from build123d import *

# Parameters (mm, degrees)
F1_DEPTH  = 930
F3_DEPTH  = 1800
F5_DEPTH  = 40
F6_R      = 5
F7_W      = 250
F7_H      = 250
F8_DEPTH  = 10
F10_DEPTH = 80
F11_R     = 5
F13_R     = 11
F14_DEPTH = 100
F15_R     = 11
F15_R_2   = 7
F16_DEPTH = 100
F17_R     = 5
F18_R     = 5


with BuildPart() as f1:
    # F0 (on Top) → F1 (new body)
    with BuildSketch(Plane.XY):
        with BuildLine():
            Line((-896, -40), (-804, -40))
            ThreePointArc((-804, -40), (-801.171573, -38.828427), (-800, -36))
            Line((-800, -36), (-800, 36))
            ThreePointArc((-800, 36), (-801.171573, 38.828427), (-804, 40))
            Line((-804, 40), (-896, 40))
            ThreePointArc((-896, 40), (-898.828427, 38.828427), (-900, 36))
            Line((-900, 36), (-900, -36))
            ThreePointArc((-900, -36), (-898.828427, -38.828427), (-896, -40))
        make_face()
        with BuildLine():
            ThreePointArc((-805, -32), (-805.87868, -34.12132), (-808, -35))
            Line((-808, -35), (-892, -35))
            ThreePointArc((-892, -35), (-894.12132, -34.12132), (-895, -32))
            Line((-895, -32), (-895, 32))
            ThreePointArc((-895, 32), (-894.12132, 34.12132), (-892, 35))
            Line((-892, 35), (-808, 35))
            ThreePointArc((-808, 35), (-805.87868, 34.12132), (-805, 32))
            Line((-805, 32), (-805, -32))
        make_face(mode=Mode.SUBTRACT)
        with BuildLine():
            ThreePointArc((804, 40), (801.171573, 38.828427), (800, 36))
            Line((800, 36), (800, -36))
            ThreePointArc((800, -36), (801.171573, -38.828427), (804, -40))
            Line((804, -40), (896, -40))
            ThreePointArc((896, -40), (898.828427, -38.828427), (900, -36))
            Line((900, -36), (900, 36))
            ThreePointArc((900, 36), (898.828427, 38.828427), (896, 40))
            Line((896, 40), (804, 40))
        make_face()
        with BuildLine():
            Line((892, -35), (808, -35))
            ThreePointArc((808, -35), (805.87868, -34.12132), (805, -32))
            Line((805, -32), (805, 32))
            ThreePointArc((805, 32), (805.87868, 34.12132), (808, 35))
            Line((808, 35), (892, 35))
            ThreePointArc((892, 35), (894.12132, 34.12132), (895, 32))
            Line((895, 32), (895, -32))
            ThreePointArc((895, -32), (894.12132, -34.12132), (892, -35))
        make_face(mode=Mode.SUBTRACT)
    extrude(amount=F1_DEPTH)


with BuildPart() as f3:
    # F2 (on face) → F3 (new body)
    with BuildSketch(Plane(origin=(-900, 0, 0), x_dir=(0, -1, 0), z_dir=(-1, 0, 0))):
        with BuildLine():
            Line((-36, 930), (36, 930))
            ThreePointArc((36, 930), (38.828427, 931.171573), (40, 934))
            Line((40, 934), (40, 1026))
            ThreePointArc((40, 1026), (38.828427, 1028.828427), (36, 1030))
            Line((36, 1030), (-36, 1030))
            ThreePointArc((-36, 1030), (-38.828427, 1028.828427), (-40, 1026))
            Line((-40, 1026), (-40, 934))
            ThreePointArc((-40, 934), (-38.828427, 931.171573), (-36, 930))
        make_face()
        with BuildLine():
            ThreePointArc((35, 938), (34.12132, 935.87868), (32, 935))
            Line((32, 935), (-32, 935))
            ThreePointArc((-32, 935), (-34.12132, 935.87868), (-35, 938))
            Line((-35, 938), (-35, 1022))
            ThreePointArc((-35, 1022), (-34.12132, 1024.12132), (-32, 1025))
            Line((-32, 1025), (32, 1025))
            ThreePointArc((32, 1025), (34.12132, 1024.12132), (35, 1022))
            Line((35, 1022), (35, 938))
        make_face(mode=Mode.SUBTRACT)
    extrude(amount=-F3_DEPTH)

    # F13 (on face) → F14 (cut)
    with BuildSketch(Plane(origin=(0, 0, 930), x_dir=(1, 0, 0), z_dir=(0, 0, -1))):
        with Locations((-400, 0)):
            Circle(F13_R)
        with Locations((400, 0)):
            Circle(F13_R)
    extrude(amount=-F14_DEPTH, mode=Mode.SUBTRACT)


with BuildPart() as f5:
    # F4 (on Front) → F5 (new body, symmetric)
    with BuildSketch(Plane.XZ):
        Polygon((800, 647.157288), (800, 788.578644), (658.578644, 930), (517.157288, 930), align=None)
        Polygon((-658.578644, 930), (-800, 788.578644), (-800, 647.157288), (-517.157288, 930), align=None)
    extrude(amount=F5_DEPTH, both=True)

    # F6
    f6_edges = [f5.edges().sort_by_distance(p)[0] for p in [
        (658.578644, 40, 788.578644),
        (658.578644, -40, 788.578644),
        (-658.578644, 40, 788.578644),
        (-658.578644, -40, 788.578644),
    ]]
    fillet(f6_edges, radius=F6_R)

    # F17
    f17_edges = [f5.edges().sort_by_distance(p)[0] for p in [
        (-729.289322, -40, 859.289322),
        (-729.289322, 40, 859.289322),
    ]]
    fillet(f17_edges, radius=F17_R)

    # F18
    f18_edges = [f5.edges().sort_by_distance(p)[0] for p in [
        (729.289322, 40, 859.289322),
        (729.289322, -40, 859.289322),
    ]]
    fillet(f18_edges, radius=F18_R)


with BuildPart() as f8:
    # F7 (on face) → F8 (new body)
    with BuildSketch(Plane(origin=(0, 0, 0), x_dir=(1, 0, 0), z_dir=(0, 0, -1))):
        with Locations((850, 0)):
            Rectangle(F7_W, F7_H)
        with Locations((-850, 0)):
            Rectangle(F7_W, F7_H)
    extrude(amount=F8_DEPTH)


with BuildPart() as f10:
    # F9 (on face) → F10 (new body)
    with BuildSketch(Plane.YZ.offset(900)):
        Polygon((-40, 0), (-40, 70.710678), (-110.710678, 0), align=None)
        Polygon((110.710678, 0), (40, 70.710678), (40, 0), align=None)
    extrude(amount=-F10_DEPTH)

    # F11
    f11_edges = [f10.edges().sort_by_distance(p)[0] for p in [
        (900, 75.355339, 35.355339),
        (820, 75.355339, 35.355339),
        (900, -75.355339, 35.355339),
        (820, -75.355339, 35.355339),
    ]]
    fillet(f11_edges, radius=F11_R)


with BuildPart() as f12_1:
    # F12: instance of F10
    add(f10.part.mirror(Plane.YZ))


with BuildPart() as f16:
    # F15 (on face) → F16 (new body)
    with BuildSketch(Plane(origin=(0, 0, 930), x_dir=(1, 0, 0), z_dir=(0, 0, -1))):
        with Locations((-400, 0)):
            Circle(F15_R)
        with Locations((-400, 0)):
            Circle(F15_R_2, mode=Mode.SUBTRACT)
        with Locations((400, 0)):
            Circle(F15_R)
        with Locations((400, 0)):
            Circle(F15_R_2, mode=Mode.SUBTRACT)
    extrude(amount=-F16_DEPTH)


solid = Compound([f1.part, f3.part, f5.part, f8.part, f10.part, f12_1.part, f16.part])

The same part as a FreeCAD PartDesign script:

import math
import FreeCAD as App
import Part
import Sketcher
from FreeCAD import Vector
Q = App.Units.Quantity


def edges_at(feature, points):
    """Names of the edges that pass closest to the given points."""
    edges = feature.Shape.Edges
    near = lambda p: min(range(len(edges)), key=lambda i: edges[i].distToShape(Part.Vertex(*p))[0])
    return sorted({f"Edge{near(p) + 1}" for p in points})

doc = App.newDocument("Part")
body = doc.addObject("PartDesign::Body", "Body")
body.AllowCompound = True

# Sketch on XY plane
sketch1 = body.newObject("Sketcher::SketchObject", "Sketch")
sketch1.AttachmentSupport = (doc.getObject("XY_Plane"), [""])
sketch1.MapMode = "FlatFace"
sketch1.addGeometry([
    Part.LineSegment(Vector(-896, -40, 0), Vector(-804, -40, 0)),  # 0
    Part.ArcOfCircle(Part.Circle(Vector(-804, -36, 0), Vector(0, 0, 1), 4), math.radians(-90), math.radians(0)),  # 1
    Part.LineSegment(Vector(-800, -36, 0), Vector(-800, 36, 0)),  # 2
    Part.ArcOfCircle(Part.Circle(Vector(-804, 36, 0), Vector(0, 0, 1), 4), math.radians(0), math.radians(90)),  # 3
    Part.LineSegment(Vector(-804, 40, 0), Vector(-896, 40, 0)),  # 4
    Part.ArcOfCircle(Part.Circle(Vector(-896, 36, 0), Vector(0, 0, 1), 4), math.radians(90), math.radians(180)),  # 5
    Part.LineSegment(Vector(-900, 36, 0), Vector(-900, -36, 0)),  # 6
    Part.ArcOfCircle(Part.Circle(Vector(-896, -36, 0), Vector(0, 0, 1), 4), math.radians(-180), math.radians(-90)),  # 7
    Part.LineSegment(Vector(-805, 32, 0), Vector(-805, -32, 0)),  # 8
    Part.ArcOfCircle(Part.Circle(Vector(-808, -32, 0), Vector(0, 0, 1), 3), math.radians(-90), math.radians(0)),  # 9
    Part.LineSegment(Vector(-808, -35, 0), Vector(-892, -35, 0)),  # 10
    Part.ArcOfCircle(Part.Circle(Vector(-892, -32, 0), Vector(0, 0, 1), 3), math.radians(-180), math.radians(-90)),  # 11
    Part.LineSegment(Vector(-895, -32, 0), Vector(-895, 32, 0)),  # 12
    Part.ArcOfCircle(Part.Circle(Vector(-892, 32, 0), Vector(0, 0, 1), 3), math.radians(90), math.radians(180)),  # 13
    Part.LineSegment(Vector(-892, 35, 0), Vector(-808, 35, 0)),  # 14
    Part.ArcOfCircle(Part.Circle(Vector(-808, 32, 0), Vector(0, 0, 1), 3), math.radians(0), math.radians(90)),  # 15
    Part.ArcOfCircle(Part.Circle(Vector(804, 36, 0), Vector(0, 0, 1), 4), math.radians(90), math.radians(180)),  # 16
    Part.LineSegment(Vector(800, 36, 0), Vector(800, -36, 0)),  # 17
    Part.ArcOfCircle(Part.Circle(Vector(804, -36, 0), Vector(0, 0, 1), 4), math.radians(-180), math.radians(-90)),  # 18
    Part.LineSegment(Vector(804, -40, 0), Vector(896, -40, 0)),  # 19
    Part.ArcOfCircle(Part.Circle(Vector(896, -36, 0), Vector(0, 0, 1), 4), math.radians(-90), math.radians(0)),  # 20
    Part.LineSegment(Vector(900, -36, 0), Vector(900, 36, 0)),  # 21
    Part.ArcOfCircle(Part.Circle(Vector(896, 36, 0), Vector(0, 0, 1), 4), math.radians(0), math.radians(90)),  # 22
    Part.LineSegment(Vector(896, 40, 0), Vector(804, 40, 0)),  # 23
    Part.ArcOfCircle(Part.Circle(Vector(892, -32, 0), Vector(0, 0, 1), 3), math.radians(-90), math.radians(0)),  # 24
    Part.LineSegment(Vector(892, -35, 0), Vector(808, -35, 0)),  # 25
    Part.ArcOfCircle(Part.Circle(Vector(808, -32, 0), Vector(0, 0, 1), 3), math.radians(-180), math.radians(-90)),  # 26
    Part.LineSegment(Vector(805, -32, 0), Vector(805, 32, 0)),  # 27
    Part.ArcOfCircle(Part.Circle(Vector(808, 32, 0), Vector(0, 0, 1), 3), math.radians(90), math.radians(180)),  # 28
    Part.LineSegment(Vector(808, 35, 0), Vector(892, 35, 0)),  # 29
    Part.ArcOfCircle(Part.Circle(Vector(892, 32, 0), Vector(0, 0, 1), 3), math.radians(0), math.radians(90)),  # 30
    Part.LineSegment(Vector(895, 32, 0), Vector(895, -32, 0)),  # 31
], False)
sketch1.addConstraint([
    Sketcher.Constraint("Tangent", 0, 2, 1, 1),
    Sketcher.Constraint("Tangent", 1, 2, 2, 1),
    Sketcher.Constraint("Tangent", 2, 2, 3, 1),
    Sketcher.Constraint("Tangent", 3, 2, 4, 1),
    Sketcher.Constraint("Tangent", 4, 2, 5, 1),
    Sketcher.Constraint("Tangent", 5, 2, 6, 1),
    Sketcher.Constraint("Tangent", 6, 2, 7, 1),
    Sketcher.Constraint("Tangent", 7, 2, 0, 1),
    Sketcher.Constraint("Tangent", 8, 2, 9, 2),
    Sketcher.Constraint("Tangent", 9, 1, 10, 1),
    Sketcher.Constraint("Tangent", 10, 2, 11, 2),
    Sketcher.Constraint("Tangent", 11, 1, 12, 1),
    Sketcher.Constraint("Tangent", 12, 2, 13, 2),
    Sketcher.Constraint("Tangent", 13, 1, 14, 1),
    Sketcher.Constraint("Tangent", 14, 2, 15, 2),
    Sketcher.Constraint("Tangent", 15, 1, 8, 1),
    Sketcher.Constraint("Tangent", 16, 2, 17, 1),
    Sketcher.Constraint("Tangent", 17, 2, 18, 1),
    Sketcher.Constraint("Tangent", 18, 2, 19, 1),
    Sketcher.Constraint("Tangent", 19, 2, 20, 1),
    Sketcher.Constraint("Tangent", 20, 2, 21, 1),
    Sketcher.Constraint("Tangent", 21, 2, 22, 1),
    Sketcher.Constraint("Tangent", 22, 2, 23, 1),
    Sketcher.Constraint("Tangent", 23, 2, 16, 1),
    Sketcher.Constraint("Tangent", 24, 1, 25, 1),
    Sketcher.Constraint("Tangent", 25, 2, 26, 2),
    Sketcher.Constraint("Tangent", 26, 1, 27, 1),
    Sketcher.Constraint("Tangent", 27, 2, 28, 2),
    Sketcher.Constraint("Tangent", 28, 1, 29, 1),
    Sketcher.Constraint("Tangent", 29, 2, 30, 2),
    Sketcher.Constraint("Tangent", 30, 1, 31, 1),
    Sketcher.Constraint("Tangent", 31, 2, 24, 2),
    Sketcher.Constraint("Horizontal", 0),
    Sketcher.Constraint("Vertical", 2),
    Sketcher.Constraint("Horizontal", 4),
    Sketcher.Constraint("Vertical", 6),
    Sketcher.Constraint("Vertical", 8),
    Sketcher.Constraint("Horizontal", 10),
    Sketcher.Constraint("Vertical", 12),
    Sketcher.Constraint("Horizontal", 14),
    Sketcher.Constraint("Vertical", 17),
    Sketcher.Constraint("Horizontal", 19),
    Sketcher.Constraint("Vertical", 21),
    Sketcher.Constraint("Horizontal", 23),
    Sketcher.Constraint("Horizontal", 25),
    Sketcher.Constraint("Vertical", 27),
    Sketcher.Constraint("Horizontal", 29),
    Sketcher.Constraint("Vertical", 31),
    Sketcher.Constraint("Equal", 1, 3),
    Sketcher.Constraint("Equal", 3, 5),
    Sketcher.Constraint("Equal", 5, 7),
    Sketcher.Constraint("Equal", 9, 11),
    Sketcher.Constraint("Equal", 11, 13),
    Sketcher.Constraint("Equal", 13, 15),
    Sketcher.Constraint("Equal", 7, 16),
    Sketcher.Constraint("Equal", 16, 18),
    Sketcher.Constraint("Equal", 18, 20),
    Sketcher.Constraint("Equal", 20, 22),
    Sketcher.Constraint("Equal", 15, 24),
    Sketcher.Constraint("Equal", 24, 26),
    Sketcher.Constraint("Equal", 26, 28),
    Sketcher.Constraint("Equal", 28, 30),
    Sketcher.Constraint("Symmetric", 1, 3, 16, 3, -1, 1),
    Sketcher.Constraint("Symmetric", 5, 3, 20, 3, -1, 1),
    Sketcher.Constraint("Symmetric", 13, 3, 24, 3, -1, 1),
    Sketcher.Constraint("Symmetric", 9, 3, 28, 3, -1, 1),
    Sketcher.Constraint("Horizontal", 5, 3, 16, 3),
    Sketcher.Constraint("Horizontal", 11, 3, 24, 3),
    Sketcher.Constraint("Radius", 1, Q("4 mm")),
    Sketcher.Constraint("Radius", 9, Q("3.000001 mm")),
    Sketcher.Constraint("DistanceX", 0, 1, 0, 2, Q("92 mm")),
    Sketcher.Constraint("DistanceX", 10, 2, 10, 1, Q("84 mm")),
    Sketcher.Constraint("DistanceY", 2, 1, 2, 2, Q("72 mm")),
    Sketcher.Constraint("DistanceY", 8, 2, 8, 1, Q("64 mm")),
    Sketcher.Constraint("DistanceX", 1, 3, -1, 1, Q("804 mm")),
    Sketcher.Constraint("DistanceX", 9, 3, -1, 1, Q("808.000001 mm")),
])
pad1 = body.newObject("PartDesign::Pad", "Pad")
pad1.Profile = sketch1
pad1.Length = 930
body2 = doc.addObject("PartDesign::Body", "Body001")

# Sketch on YZ plane
sketch2 = body2.newObject("Sketcher::SketchObject", "Sketch001")
sketch2.AttachmentSupport = (doc.getObject("YZ_Plane001"), [""])
sketch2.MapMode = "FlatFace"
sketch2.AttachmentOffset = App.Placement(Vector(0, 0, -900), App.Rotation())
sketch2.addGeometry([
    Part.LineSegment(Vector(36, 930, 0), Vector(-36, 930, 0)),  # 0
    Part.ArcOfCircle(Part.Circle(Vector(-36, 934, 0), Vector(0, 0, 1), 4), math.radians(-180), math.radians(-90)),  # 1
    Part.LineSegment(Vector(-40, 934, 0), Vector(-40, 1026, 0)),  # 2
    Part.ArcOfCircle(Part.Circle(Vector(-36, 1026, 0), Vector(0, 0, 1), 4), math.radians(90), math.radians(180)),  # 3
    Part.LineSegment(Vector(-36, 1030, 0), Vector(36, 1030, 0)),  # 4
    Part.ArcOfCircle(Part.Circle(Vector(36, 1026, 0), Vector(0, 0, 1), 4), math.radians(0), math.radians(90)),  # 5
    Part.LineSegment(Vector(40, 1026, 0), Vector(40, 934, 0)),  # 6
    Part.ArcOfCircle(Part.Circle(Vector(36, 934, 0), Vector(0, 0, 1), 4), math.radians(-90), math.radians(0)),  # 7
    Part.LineSegment(Vector(-35, 1022, 0), Vector(-35, 938, 0)),  # 8
    Part.ArcOfCircle(Part.Circle(Vector(-32, 938, 0), Vector(0, 0, 1), 3), math.radians(-180), math.radians(-90)),  # 9
    Part.LineSegment(Vector(-32, 935, 0), Vector(32, 935, 0)),  # 10
    Part.ArcOfCircle(Part.Circle(Vector(32, 938, 0), Vector(0, 0, 1), 3), math.radians(-90), math.radians(0)),  # 11
    Part.LineSegment(Vector(35, 938, 0), Vector(35, 1022, 0)),  # 12
    Part.ArcOfCircle(Part.Circle(Vector(32, 1022, 0), Vector(0, 0, 1), 3), math.radians(0), math.radians(90)),  # 13
    Part.LineSegment(Vector(32, 1025, 0), Vector(-32, 1025, 0)),  # 14
    Part.ArcOfCircle(Part.Circle(Vector(-32, 1022, 0), Vector(0, 0, 1), 3), math.radians(90), math.radians(180)),  # 15
], False)
sketch2.addConstraint([
    Sketcher.Constraint("Tangent", 0, 2, 1, 2),
    Sketcher.Constraint("Tangent", 1, 1, 2, 1),
    Sketcher.Constraint("Tangent", 2, 2, 3, 2),
    Sketcher.Constraint("Tangent", 3, 1, 4, 1),
    Sketcher.Constraint("Tangent", 4, 2, 5, 2),
    Sketcher.Constraint("Tangent", 5, 1, 6, 1),
    Sketcher.Constraint("Tangent", 6, 2, 7, 2),
    Sketcher.Constraint("Tangent", 7, 1, 0, 1),
    Sketcher.Constraint("Tangent", 8, 2, 9, 1),
    Sketcher.Constraint("Tangent", 9, 2, 10, 1),
    Sketcher.Constraint("Tangent", 10, 2, 11, 1),
    Sketcher.Constraint("Tangent", 11, 2, 12, 1),
    Sketcher.Constraint("Tangent", 12, 2, 13, 1),
    Sketcher.Constraint("Tangent", 13, 2, 14, 1),
    Sketcher.Constraint("Tangent", 14, 2, 15, 1),
    Sketcher.Constraint("Tangent", 15, 2, 8, 1),
    Sketcher.Constraint("Horizontal", 0),
    Sketcher.Constraint("Vertical", 2),
    Sketcher.Constraint("Horizontal", 4),
    Sketcher.Constraint("Vertical", 6),
    Sketcher.Constraint("Vertical", 8),
    Sketcher.Constraint("Horizontal", 10),
    Sketcher.Constraint("Vertical", 12),
    Sketcher.Constraint("Horizontal", 14),
    Sketcher.Constraint("Equal", 1, 3),
    Sketcher.Constraint("Equal", 3, 5),
    Sketcher.Constraint("Equal", 5, 7),
    Sketcher.Constraint("Equal", 9, 11),
    Sketcher.Constraint("Equal", 11, 13),
    Sketcher.Constraint("Equal", 13, 15),
    Sketcher.Constraint("Radius", 1, Q("4 mm")),
    Sketcher.Constraint("Radius", 9, Q("3.000001 mm")),
    Sketcher.Constraint("DistanceX", 0, 2, 0, 1, Q("72 mm")),
    Sketcher.Constraint("DistanceX", 10, 1, 10, 2, Q("64 mm")),
    Sketcher.Constraint("DistanceY", 2, 1, 2, 2, Q("92 mm")),
    Sketcher.Constraint("DistanceY", 8, 2, 8, 1, Q("84 mm")),
    Sketcher.Constraint("DistanceX", 1, 3, -1, 1, Q("36 mm")),
    Sketcher.Constraint("DistanceY", -1, 1, 1, 3, Q("934 mm")),
    Sketcher.Constraint("DistanceX", 9, 3, -1, 1, Q("31.999999 mm")),
    Sketcher.Constraint("DistanceY", -1, 1, 9, 3, Q("938.000001 mm")),
])
pad2 = body2.newObject("PartDesign::Pad", "Pad001")
pad2.Profile = sketch2
pad2.Length = 1800

# Sketch on XY plane
sketch3 = body2.newObject("Sketcher::SketchObject", "Sketch002")
sketch3.AttachmentSupport = (doc.getObject("XY_Plane001"), [""])
sketch3.MapMode = "FlatFace"
sketch3.AttachmentOffset = App.Placement(Vector(0, 0, 930), App.Rotation())
sketch3.addGeometry([
    Part.Circle(Vector(-400, 0, 0), Vector(0, 0, 1), 11),
    Part.Circle(Vector(400, 0, 0), Vector(0, 0, 1), 11),
], False)
sketch3.addConstraint([
    Sketcher.Constraint("Equal", 0, 1),
    Sketcher.Constraint("Symmetric", 0, 3, 1, 3, -1, 1),
    Sketcher.Constraint("PointOnObject", 0, 3, -1),
    Sketcher.Constraint("Diameter", 0, Q("22 mm")),
    Sketcher.Constraint("DistanceX", 0, 3, -1, 1, Q("400 mm")),
])
pocket1 = body2.newObject("PartDesign::Pocket", "Pocket")
pocket1.Profile = sketch3
pocket1.Length = 100
pocket1.Reversed = True
body3 = doc.addObject("PartDesign::Body", "Body002")
body3.AllowCompound = True

# Sketch on XZ plane
sketch4 = body3.newObject("Sketcher::SketchObject", "Sketch003")
sketch4.AttachmentSupport = (doc.getObject("XZ_Plane002"), [""])
sketch4.MapMode = "FlatFace"
sketch4.addGeometry([
    Part.LineSegment(Vector(800, 647, 0), Vector(800, 789, 0)),  # 0
    Part.LineSegment(Vector(800, 789, 0), Vector(659, 930, 0)),  # 1
    Part.LineSegment(Vector(659, 930, 0), Vector(517, 930, 0)),  # 2
    Part.LineSegment(Vector(517, 930, 0), Vector(800, 647, 0)),  # 3
    Part.LineSegment(Vector(-659, 930, 0), Vector(-800, 789, 0)),  # 4
    Part.LineSegment(Vector(-800, 789, 0), Vector(-800, 647, 0)),  # 5
    Part.LineSegment(Vector(-800, 647, 0), Vector(-517, 930, 0)),  # 6
    Part.LineSegment(Vector(-517, 930, 0), Vector(-659, 930, 0)),  # 7
], False)
sketch4.addConstraint([
    Sketcher.Constraint("Coincident", 0, 2, 1, 1),
    Sketcher.Constraint("Coincident", 1, 2, 2, 1),
    Sketcher.Constraint("Coincident", 2, 2, 3, 1),
    Sketcher.Constraint("Coincident", 3, 2, 0, 1),
    Sketcher.Constraint("Coincident", 4, 2, 5, 1),
    Sketcher.Constraint("Coincident", 5, 2, 6, 1),
    Sketcher.Constraint("Coincident", 6, 2, 7, 1),
    Sketcher.Constraint("Coincident", 7, 2, 4, 1),
    Sketcher.Constraint("Vertical", 0),
    Sketcher.Constraint("Horizontal", 2),
    Sketcher.Constraint("Vertical", 5),
    Sketcher.Constraint("Horizontal", 7),
    Sketcher.Constraint("Symmetric", 0, 2, 4, 2, -2),
    Sketcher.Constraint("Symmetric", 2, 2, 6, 2, -2),
    Sketcher.Constraint("Parallel", 1, 3),
    Sketcher.Constraint("Perpendicular", 3, 4),
    Sketcher.Constraint("Parallel", 4, 6),
    Sketcher.Constraint("Horizontal", 3, 2, 5, 2),
    Sketcher.Constraint("Distance", 1, Q("200 mm")),
    Sketcher.Constraint("Distance", 3, Q("399.999999 mm")),
    Sketcher.Constraint("DistanceX", -1, 1, 0, 2, Q("800 mm")),
    Sketcher.Constraint("DistanceY", -1, 1, 1, 2, Q("930 mm")),
])
pad3 = body3.newObject("PartDesign::Pad", "Pad002")
pad3.Profile = sketch4
pad3.Length = 80
pad3.Midplane = True
doc.recompute()

fillet = body3.newObject("PartDesign::Fillet", "Fillet")
fillet.Base = (pad3, edges_at(pad3, [
    (658.579, 40, 788.579),
    (658.579, -40, 788.579),
    (-658.579, 40, 788.579),
    (-658.579, -40, 788.579),
]))
fillet.Radius = 5
doc.recompute()

fillet2 = body3.newObject("PartDesign::Fillet", "Fillet001")
fillet2.Base = (fillet, edges_at(fillet, [(-729.289, -40, 859.289), (-729.289, 40, 859.289)]))
fillet2.Radius = 5
doc.recompute()

fillet3 = body3.newObject("PartDesign::Fillet", "Fillet002")
fillet3.Base = (fillet2, edges_at(fillet2, [(729.289, 40, 859.289), (729.289, -40, 859.289)]))
fillet3.Radius = 5
body4 = doc.addObject("PartDesign::Body", "Body003")
body4.AllowCompound = True

# Sketch on XY plane
sketch5 = body4.newObject("Sketcher::SketchObject", "Sketch004")
sketch5.AttachmentSupport = (doc.getObject("XY_Plane003"), [""])
sketch5.MapMode = "FlatFace"
sketch5.addGeometry([
    Part.LineSegment(Vector(725, -125, 0), Vector(725, 125, 0)),  # 0
    Part.LineSegment(Vector(725, 125, 0), Vector(975, 125, 0)),  # 1
    Part.LineSegment(Vector(975, 125, 0), Vector(975, -125, 0)),  # 2
    Part.LineSegment(Vector(975, -125, 0), Vector(725, -125, 0)),  # 3
    Part.LineSegment(Vector(-975, -125, 0), Vector(-975, 125, 0)),  # 4
    Part.LineSegment(Vector(-975, 125, 0), Vector(-725, 125, 0)),  # 5
    Part.LineSegment(Vector(-725, 125, 0), Vector(-725, -125, 0)),  # 6
    Part.LineSegment(Vector(-725, -125, 0), Vector(-975, -125, 0)),  # 7
], False)
sketch5.addConstraint([
    Sketcher.Constraint("Coincident", 0, 2, 1, 1),
    Sketcher.Constraint("Coincident", 1, 2, 2, 1),
    Sketcher.Constraint("Coincident", 2, 2, 3, 1),
    Sketcher.Constraint("Coincident", 3, 2, 0, 1),
    Sketcher.Constraint("Coincident", 4, 2, 5, 1),
    Sketcher.Constraint("Coincident", 5, 2, 6, 1),
    Sketcher.Constraint("Coincident", 6, 2, 7, 1),
    Sketcher.Constraint("Coincident", 7, 2, 4, 1),
    Sketcher.Constraint("Vertical", 0),
    Sketcher.Constraint("Horizontal", 1),
    Sketcher.Constraint("Vertical", 2),
    Sketcher.Constraint("Horizontal", 3),
    Sketcher.Constraint("Vertical", 4),
    Sketcher.Constraint("Horizontal", 5),
    Sketcher.Constraint("Vertical", 6),
    Sketcher.Constraint("Horizontal", 7),
    Sketcher.Constraint("Symmetric", 2, 2, 4, 2, -1, 1),
    Sketcher.Constraint("Symmetric", 0, 2, 6, 2, -1, 1),
    Sketcher.Constraint("Horizontal", 1, 2, 4, 2),
    Sketcher.Constraint("Equal", 7, 0),
    Sketcher.Constraint("DistanceX", 1, 1, 1, 2, Q("250 mm")),
    Sketcher.Constraint("DistanceX", -1, 1, 0, 2, Q("725 mm")),
])
pad4 = body4.newObject("PartDesign::Pad", "Pad003")
pad4.Profile = sketch5
pad4.Length = 10
pad4.Reversed = True
body5 = doc.addObject("PartDesign::Body", "Body004")
body5.AllowCompound = True

# Sketch on YZ plane
sketch6 = body5.newObject("Sketcher::SketchObject", "Sketch005")
sketch6.AttachmentSupport = (doc.getObject("YZ_Plane004"), [""])
sketch6.MapMode = "FlatFace"
sketch6.AttachmentOffset = App.Placement(Vector(0, 0, 900), App.Rotation())
sketch6.addGeometry([
    Part.LineSegment(Vector(-40, 0, 0), Vector(-40, 71, 0)),  # 0
    Part.LineSegment(Vector(-40, 71, 0), Vector(-111, 0, 0)),  # 1
    Part.LineSegment(Vector(-111, 0, 0), Vector(-40, 0, 0)),  # 2
    Part.LineSegment(Vector(111, 0, 0), Vector(40, 71, 0)),  # 3
    Part.LineSegment(Vector(40, 71, 0), Vector(40, 0, 0)),  # 4
    Part.LineSegment(Vector(40, 0, 0), Vector(111, 0, 0)),  # 5
], False)
sketch6.addConstraint([
    Sketcher.Constraint("Coincident", 0, 2, 1, 1),
    Sketcher.Constraint("Coincident", 1, 2, 2, 1),
    Sketcher.Constraint("Coincident", 2, 2, 0, 1),
    Sketcher.Constraint("Coincident", 3, 2, 4, 1),
    Sketcher.Constraint("Coincident", 4, 2, 5, 1),
    Sketcher.Constraint("Coincident", 5, 2, 3, 1),
    Sketcher.Constraint("Vertical", 0),
    Sketcher.Constraint("Horizontal", 2),
    Sketcher.Constraint("Vertical", 4),
    Sketcher.Constraint("Horizontal", 5),
    Sketcher.Constraint("Symmetric", 2, 2, 4, 2, -1, 1),
    Sketcher.Constraint("Symmetric", 1, 2, 5, 2, -2),
    Sketcher.Constraint("Perpendicular", 1, 3),
    Sketcher.Constraint("Horizontal", 0, 2, 3, 2),
    Sketcher.Constraint("Distance", 1, Q("100 mm")),
    Sketcher.Constraint("DistanceX", 0, 2, -1, 1, Q("40 mm")),
])
pad5 = body5.newObject("PartDesign::Pad", "Pad004")
pad5.Profile = sketch6
pad5.Length = 80
pad5.Reversed = True
doc.recompute()

fillet4 = body5.newObject("PartDesign::Fillet", "Fillet003")
fillet4.Base = (pad5, edges_at(pad5, [
    (900, 75.355, 35.355),
    (820, 75.355, 35.355),
    (900, -75.355, 35.355),
    (820, -75.355, 35.355),
]))
fillet4.Radius = 5
body6 = doc.addObject("PartDesign::Body", "Body005")
body6.AllowCompound = True
doc.recompute()

mirroring = doc.addObject("Part::Mirroring", "Mirroring")
mirroring.Source = body5
mirroring.Base = Vector(0, 0, 0)
mirroring.Normal = Vector(1, 0, 0)
body6.BaseFeature = mirroring
doc.recompute()
body7 = doc.addObject("PartDesign::Body", "Body006")
body7.AllowCompound = True

# Sketch on XY plane
sketch7 = body7.newObject("Sketcher::SketchObject", "Sketch006")
sketch7.AttachmentSupport = (doc.getObject("XY_Plane006"), [""])
sketch7.MapMode = "FlatFace"
sketch7.AttachmentOffset = App.Placement(Vector(0, 0, 930), App.Rotation())
sketch7.addGeometry([
    Part.Circle(Vector(-400, 0, 0), Vector(0, 0, 1), 11),
    Part.Circle(Vector(-400, 0, 0), Vector(0, 0, 1), 7),
    Part.Circle(Vector(400, 0, 0), Vector(0, 0, 1), 11),
    Part.Circle(Vector(400, 0, 0), Vector(0, 0, 1), 7),
], False)
sketch7.addConstraint([
    Sketcher.Constraint("Coincident", 1, 3, 0, 3),
    Sketcher.Constraint("Coincident", 3, 3, 2, 3),
    Sketcher.Constraint("Equal", 0, 2),
    Sketcher.Constraint("Equal", 1, 3),
    Sketcher.Constraint("Symmetric", 0, 3, 2, 3, -1, 1),
    Sketcher.Constraint("PointOnObject", 0, 3, -1),
    Sketcher.Constraint("Diameter", 0, Q("22 mm")),
    Sketcher.Constraint("Diameter", 1, Q("14 mm")),
    Sketcher.Constraint("DistanceX", 0, 3, -1, 1, Q("400 mm")),
])
pad6 = body7.newObject("PartDesign::Pad", "Pad005")
pad6.Profile = sketch7
pad6.Length = 100
mirroring.Visibility = False

doc.recompute()
